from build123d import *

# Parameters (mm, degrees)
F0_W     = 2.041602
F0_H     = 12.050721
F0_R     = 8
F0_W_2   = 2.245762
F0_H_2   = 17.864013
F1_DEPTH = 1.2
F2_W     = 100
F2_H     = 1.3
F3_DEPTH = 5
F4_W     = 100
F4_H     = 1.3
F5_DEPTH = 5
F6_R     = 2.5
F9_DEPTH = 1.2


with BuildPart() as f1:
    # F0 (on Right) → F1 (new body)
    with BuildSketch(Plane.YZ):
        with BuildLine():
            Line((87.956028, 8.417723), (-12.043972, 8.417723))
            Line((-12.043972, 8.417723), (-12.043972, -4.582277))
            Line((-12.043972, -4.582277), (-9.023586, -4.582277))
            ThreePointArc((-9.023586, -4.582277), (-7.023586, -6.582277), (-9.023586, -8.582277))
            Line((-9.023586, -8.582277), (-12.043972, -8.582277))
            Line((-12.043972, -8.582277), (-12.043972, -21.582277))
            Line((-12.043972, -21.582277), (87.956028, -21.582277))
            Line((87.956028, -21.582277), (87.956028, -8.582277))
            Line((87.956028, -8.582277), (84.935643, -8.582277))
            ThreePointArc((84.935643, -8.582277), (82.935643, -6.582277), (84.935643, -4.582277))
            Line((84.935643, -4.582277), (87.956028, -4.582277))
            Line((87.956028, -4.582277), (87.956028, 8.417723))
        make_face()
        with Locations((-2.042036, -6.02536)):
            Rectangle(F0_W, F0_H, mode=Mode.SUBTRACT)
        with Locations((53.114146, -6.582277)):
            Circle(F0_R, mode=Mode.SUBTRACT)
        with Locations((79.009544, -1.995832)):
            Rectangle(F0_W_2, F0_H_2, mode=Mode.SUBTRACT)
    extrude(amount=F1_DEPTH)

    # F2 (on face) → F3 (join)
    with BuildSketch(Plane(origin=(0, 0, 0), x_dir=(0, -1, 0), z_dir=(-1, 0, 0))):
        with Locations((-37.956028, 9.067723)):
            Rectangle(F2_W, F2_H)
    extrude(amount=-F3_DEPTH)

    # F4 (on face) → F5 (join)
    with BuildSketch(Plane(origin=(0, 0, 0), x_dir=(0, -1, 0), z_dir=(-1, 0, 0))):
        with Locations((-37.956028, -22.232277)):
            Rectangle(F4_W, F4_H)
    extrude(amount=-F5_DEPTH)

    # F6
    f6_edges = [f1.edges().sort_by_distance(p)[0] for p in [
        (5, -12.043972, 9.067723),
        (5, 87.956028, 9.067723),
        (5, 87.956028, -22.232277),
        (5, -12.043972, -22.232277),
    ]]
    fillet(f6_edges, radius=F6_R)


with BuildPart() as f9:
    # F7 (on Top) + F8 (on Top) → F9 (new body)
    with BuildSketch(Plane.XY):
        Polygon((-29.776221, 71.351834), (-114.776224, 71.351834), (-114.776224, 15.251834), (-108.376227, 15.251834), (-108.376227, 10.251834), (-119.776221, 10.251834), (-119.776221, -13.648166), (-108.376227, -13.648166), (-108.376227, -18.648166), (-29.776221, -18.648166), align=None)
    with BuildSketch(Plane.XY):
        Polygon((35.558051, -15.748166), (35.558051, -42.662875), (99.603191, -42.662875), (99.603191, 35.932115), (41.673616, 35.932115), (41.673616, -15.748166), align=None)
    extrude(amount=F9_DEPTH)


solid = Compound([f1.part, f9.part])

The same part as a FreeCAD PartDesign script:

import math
import FreeCAD as App
import Part
import Sketcher
Q = App.Units.Quantity


def edges_at(feature, points):
    """Names of the edges that pass closest to the given points."""
    edges = feature.Shape.Edges
    near = lambda p: min(range(len(edges)), key=lambda i: edges[i].distToShape(Part.Vertex(*p))[0])
    return sorted({f"Edge{near(p) + 1}" for p in points})


def add_polygon(sketch, points):
    """Adds a closed chain of lines whose ends are joined by coincident constraints."""
    first, n = sketch.GeometryCount, len(points)
    for a, b in zip(points, points[1:] + points[:1]):
        sketch.addGeometry(Part.LineSegment(App.Vector(*a, 0), App.Vector(*b, 0)), False)
    for i in range(n):
        sketch.addConstraint(Sketcher.Constraint("Coincident", first + i, 2, first + (i + 1) % n, 1))

doc = App.newDocument("Part")
body = doc.addObject("PartDesign::Body", "Body")

sketch1 = body.newObject("Sketcher::SketchObject", "Sketch")
sketch1.AttachmentSupport = (doc.getObject("YZ_Plane"), [""])
sketch1.MapMode = "FlatFace"
sketch1.addGeometry(Part.LineSegment(App.Vector(87.956028, 8.417723, 0), App.Vector(-12.043972, 8.417723, 0)), False)
sketch1.addGeometry(Part.LineSegment(App.Vector(-12.043972, 8.417723, 0), App.Vector(-12.043972, -4.582277, 0)), False)
sketch1.addGeometry(Part.LineSegment(App.Vector(-12.043972, -4.582277, 0), App.Vector(-9.023586, -4.582277, 0)), False)
sketch1.addGeometry(Part.ArcOfCircle(Part.Circle(App.Vector(-9.023586, -6.582277, 0), App.Vector(0, 0, 1), 2), math.radians(-90), math.radians(90)), False)
sketch1.addGeometry(Part.LineSegment(App.Vector(-9.023586, -8.582277, 0), App.Vector(-12.043972, -8.582277, 0)), False)
sketch1.addGeometry(Part.LineSegment(App.Vector(-12.043972, -8.582277, 0), App.Vector(-12.043972, -21.582277, 0)), False)
sketch1.addGeometry(Part.LineSegment(App.Vector(-12.043972, -21.582277, 0), App.Vector(87.956028, -21.582277, 0)), False)
sketch1.addGeometry(Part.LineSegment(App.Vector(87.956028, -21.582277, 0), App.Vector(87.956028, -8.582277, 0)), False)
sketch1.addGeometry(Part.LineSegment(App.Vector(87.956028, -8.582277, 0), App.Vector(84.935643, -8.582277, 0)), False)
sketch1.addGeometry(Part.ArcOfCircle(Part.Circle(App.Vector(84.935643, -6.582277, 0), App.Vector(0, 0, 1), 2), math.radians(90), math.radians(270)), False)
sketch1.addGeometry(Part.LineSegment(App.Vector(84.935643, -4.582277, 0), App.Vector(87.956028, -4.582277, 0)), False)
sketch1.addGeometry(Part.LineSegment(App.Vector(87.956028, -4.582277, 0), App.Vector(87.956028, 8.417723, 0)), False)
add_polygon(sketch1, [(-1.021235, -12.050721), (-3.062837, -12.050721), (-3.062837, 0), (-1.021235, 0)])
sketch1.addGeometry(Part.Circle(App.Vector(53.114146, -6.582277, 0), App.Vector(0, 0, 1), 8), False)
add_polygon(sketch1, [(80.132425, -10.927839), (77.886663, -10.927839), (77.886663, 6.936174), (80.132425, 6.936174)])
sketch1.addConstraint(Sketcher.Constraint("Coincident", 0, 2, 1, 1))
sketch1.addConstraint(Sketcher.Constraint("Coincident", 1, 2, 2, 1))
sketch1.addConstraint(Sketcher.Constraint("Tangent", 2, 2, 3, 2))
sketch1.addConstraint(Sketcher.Constraint("Tangent", 3, 1, 4, 1))
sketch1.addConstraint(Sketcher.Constraint("Coincident", 4, 2, 5, 1))
sketch1.addConstraint(Sketcher.Constraint("Coincident", 5, 2, 6, 1))
sketch1.addConstraint(Sketcher.Constraint("Coincident", 6, 2, 7, 1))
sketch1.addConstraint(Sketcher.Constraint("Coincident", 7, 2, 8, 1))
sketch1.addConstraint(Sketcher.Constraint("Tangent", 8, 2, 9, 2))
sketch1.addConstraint(Sketcher.Constraint("Tangent", 9, 1, 10, 1))
sketch1.addConstraint(Sketcher.Constraint("Coincident", 10, 2, 11, 1))
sketch1.addConstraint(Sketcher.Constraint("Coincident", 11, 2, 0, 1))
sketch1.addConstraint(Sketcher.Constraint("Horizontal", 0))
sketch1.addConstraint(Sketcher.Constraint("Vertical", 1))
sketch1.addConstraint(Sketcher.Constraint("Horizontal", 2))
sketch1.addConstraint(Sketcher.Constraint("Horizontal", 4))
sketch1.addConstraint(Sketcher.Constraint("Vertical", 5))
sketch1.addConstraint(Sketcher.Constraint("Horizontal", 6))
sketch1.addConstraint(Sketcher.Constraint("Vertical", 7))
sketch1.addConstraint(Sketcher.Constraint("Horizontal", 8))
sketch1.addConstraint(Sketcher.Constraint("Horizontal", 10))
sketch1.addConstraint(Sketcher.Constraint("Vertical", 11))
sketch1.addConstraint(Sketcher.Constraint("Horizontal", 12))
sketch1.addConstraint(Sketcher.Constraint("Vertical", 13))
sketch1.addConstraint(Sketcher.Constraint("Horizontal", 14))
sketch1.addConstraint(Sketcher.Constraint("Vertical", 15))
sketch1.addConstraint(Sketcher.Constraint("Horizontal", 17))
sketch1.addConstraint(Sketcher.Constraint("Vertical", 18))
sketch1.addConstraint(Sketcher.Constraint("Horizontal", 19))
sketch1.addConstraint(Sketcher.Constraint("Vertical", 20))
sketch1.addConstraint(Sketcher.Constraint("Equal", 3, 9))
sketch1.addConstraint(Sketcher.Constraint("PointOnObject", 13, 2, -1))
sketch1.addConstraint(Sketcher.Constraint("Horizontal", 3, 3, 9, 3))
sketch1.addConstraint(Sketcher.Constraint("Horizontal", 9, 3, 16, 3))
sketch1.addConstraint(Sketcher.Constraint("Vertical", 1, 2, 4, 2))
sketch1.addConstraint(Sketcher.Constraint("Vertical", 7, 2, 10, 2))
sketch1.addConstraint(Sketcher.Constraint("Equal", 4, 8))
sketch1.addConstraint(Sketcher.Constraint("Equal", 1, 5))
sketch1.addConstraint(Sketcher.Constraint("Diameter", 16, Q("16 mm")))
sketch1.addConstraint(Sketcher.Constraint("Radius", 3, Q("2 mm")))
sketch1.addConstraint(Sketcher.Constraint("DistanceX", 0, 2, 0, 1, Q("100 mm")))
sketch1.addConstraint(Sketcher.Constraint("DistanceY", 1, 2, 1, 1, Q("13 mm")))
sketch1.addConstraint(Sketcher.Constraint("DistanceX", 17, 2, 17, 1, Q("2.245762 mm")))
sketch1.addConstraint(Sketcher.Constraint("DistanceY", 13, 1, 13, 2, Q("12.050721 mm")))
sketch1.addConstraint(Sketcher.Constraint("DistanceX", 2, 1, 2, 2, Q("3.020386 mm")))
sketch1.addConstraint(Sketcher.Constraint("DistanceX", 12, 2, 12, 1, Q("2.041602 mm")))
sketch1.addConstraint(Sketcher.Constraint("DistanceY", 18, 1, 18, 2, Q("17.864013 mm")))
sketch1.addConstraint(Sketcher.Constraint("DistanceX", -1, 1, 6, 2, Q("87.956028 mm")))
sketch1.addConstraint(Sketcher.Constraint("DistanceY", 17, 2, -1, 1, Q("10.927839 mm")))
sketch1.addConstraint(Sketcher.Constraint("DistanceX", 0, 2, 16, 3, Q("65.158118 mm")))
sketch1.addConstraint(Sketcher.Constraint("DistanceX", 3, 1, 12, 2, Q("5.960749 mm")))
sketch1.addConstraint(Sketcher.Constraint("DistanceX", 17, 2, 8, 2, Q("7.04898 mm")))
sketch1.addConstraint(Sketcher.Constraint("DistanceY", 17, 2, 8, 2, Q("2.345562 mm")))
pad1 = body.newObject("PartDesign::Pad", "Pad")
pad1.Profile = sketch1
pad1.Length = 1.2

sketch2 = body.newObject("Sketcher::SketchObject", "Sketch001")
sketch2.AttachmentSupport = (doc.getObject("YZ_Plane"), [""])
sketch2.MapMode = "FlatFace"
add_polygon(sketch2, [(87.956028, 9.717723), (87.956028, 8.417723), (-12.043972, 8.417723), (-12.043972, 9.717723)])
sketch2.addConstraint(Sketcher.Constraint("Vertical", 0))
sketch2.addConstraint(Sketcher.Constraint("Horizontal", 1))
sketch2.addConstraint(Sketcher.Constraint("Vertical", 2))
sketch2.addConstraint(Sketcher.Constraint("Horizontal", 3))
sketch2.addConstraint(Sketcher.Constraint("DistanceX", 1, 2, 1, 1, Q("100 mm")))
sketch2.addConstraint(Sketcher.Constraint("DistanceY", 0, 2, 0, 1, Q("1.3 mm")))
sketch2.addConstraint(Sketcher.Constraint("DistanceX", -1, 1, 0, 2, Q("87.956028 mm")))
sketch2.addConstraint(Sketcher.Constraint("DistanceY", -1, 1, 0, 2, Q("8.417723 mm")))
pad2 = body.newObject("PartDesign::Pad", "Pad001")
pad2.Profile = sketch2
pad2.Length = 5

sketch3 = body.newObject("Sketcher::SketchObject", "Sketch002")
sketch3.AttachmentSupport = (doc.getObject("YZ_Plane"), [""])
sketch3.MapMode = "FlatFace"
add_polygon(sketch3, [(87.956028, -21.582277), (87.956028, -22.882277), (-12.043972, -22.882277), (-12.043972, -21.582277)])
sketch3.addConstraint(Sketcher.Constraint("Vertical", 0))
sketch3.addConstraint(Sketcher.Constraint("Horizontal", 1))
sketch3.addConstraint(Sketcher.Constraint("Vertical", 2))
sketch3.addConstraint(Sketcher.Constraint("Horizontal", 3))
sketch3.addConstraint(Sketcher.Constraint("DistanceX", 1, 2, 1, 1, Q("100 mm")))
sketch3.addConstraint(Sketcher.Constraint("DistanceY", 0, 2, 0, 1, Q("1.3 mm")))
sketch3.addConstraint(Sketcher.Constraint("DistanceX", -1, 1, 0, 2, Q("87.956028 mm")))
sketch3.addConstraint(Sketcher.Constraint("DistanceY", 0, 2, -1, 1, Q("22.882277 mm")))
pad3 = body.newObject("PartDesign::Pad", "Pad002")
pad3.Profile = sketch3
pad3.Length = 5
doc.recompute()

fillet = body.newObject("PartDesign::Fillet", "Fillet")
fillet.Base = (pad3, edges_at(pad3, [
    (5, -12.044, 9.068),
    (5, 87.956, 9.068),
    (5, 87.956, -22.232),
    (5, -12.044, -22.232),
]))
fillet.Radius = 2.5
body2 = doc.addObject("PartDesign::Body", "Body001")
body2.AllowCompound = True

sketch4 = body2.newObject("Sketcher::SketchObject", "Sketch003")
sketch4.AttachmentSupport = (doc.getObject("XY_Plane001"), [""])
sketch4.MapMode = "FlatFace"
add_polygon(sketch4, [(-29.776221, 71.351834), (-114.776224, 71.351834), (-114.776224, 15.251834), (-108.376227, 15.251834), (-108.376227, 10.251834), (-119.776221, 10.251834), (-119.776221, -13.648166), (-108.376227, -13.648166), (-108.376227, -18.648166), (-29.776221, -18.648166)])
add_polygon(sketch4, [(35.558051, -15.748166), (35.558051, -42.662875), (99.603191, -42.662875), (99.603191, 35.932115), (41.673616, 35.932115), (41.673616, -15.748166)])
sketch4.addConstraint(Sketcher.Constraint("Horizontal", 0))
sketch4.addConstraint(Sketcher.Constraint("Vertical", 1))
sketch4.addConstraint(Sketcher.Constraint("Horizontal", 2))
sketch4.addConstraint(Sketcher.Constraint("Vertical", 3))
sketch4.addConstraint(Sketcher.Constraint("Horizontal", 4))
sketch4.addConstraint(Sketcher.Constraint("Vertical", 5))
sketch4.addConstraint(Sketcher.Constraint("Horizontal", 6))
sketch4.addConstraint(Sketcher.Constraint("Vertical", 7))
sketch4.addConstraint(Sketcher.Constraint("Horizontal", 8))
sketch4.addConstraint(Sketcher.Constraint("Vertical", 9))
sketch4.addConstraint(Sketcher.Constraint("Vertical", 10))
sketch4.addConstraint(Sketcher.Constraint("Horizontal", 11))
sketch4.addConstraint(Sketcher.Constraint("Vertical", 12))
sketch4.addConstraint(Sketcher.Constraint("Horizontal", 13))
sketch4.addConstraint(Sketcher.Constraint("Vertical", 14))
sketch4.addConstraint(Sketcher.Constraint("Horizontal", 15))
sketch4.addConstraint(Sketcher.Constraint("Vertical", 3, 2, 6, 2))
sketch4.addConstraint(Sketcher.Constraint("Equal", 3, 7))
sketch4.addConstraint(Sketcher.Constraint("DistanceY", 3, 2, 3, 1, Q("5 mm")))
sketch4.addConstraint(Sketcher.Constraint("DistanceY", 9, 1, 9, 2, Q("90 mm")))
sketch4.addConstraint(Sketcher.Constraint("DistanceY", 1, 2, 1, 1, Q("56.1 mm")))
sketch4.addConstraint(Sketcher.Constraint("DistanceX", 5, 2, 8, 2, Q("90 mm")))
sketch4.addConstraint(Sketcher.Constraint("DistanceY", 8, 2, 14, 2, Q("2.9 mm")))
sketch4.addConstraint(Sketcher.Constraint("DistanceX", 11, 1, 11, 2, Q("64.04514 mm")))
sketch4.addConstraint(Sketcher.Constraint("DistanceY", 10, 2, 10, 1, Q("26.914709 mm")))
sketch4.addConstraint(Sketcher.Constraint("DistanceY", 12, 1, 12, 2, Q("78.59499 mm")))
sketch4.addConstraint(Sketcher.Constraint("DistanceX", 0, 2, 0, 1, Q("85.000003 mm")))
sketch4.addConstraint(Sketcher.Constraint("DistanceX", 2, 1, 2, 2, Q("6.399997 mm")))
sketch4.addConstraint(Sketcher.Constraint("DistanceX", 13, 2, 13, 1, Q("57.929575 mm")))
sketch4.addConstraint(Sketcher.Constraint("DistanceX", 4, 2, -1, 1, Q("119.776221 mm")))
sketch4.addConstraint(Sketcher.Constraint("DistanceX", -1, 1, 10, 2, Q("35.558051 mm")))
sketch4.addConstraint(Sketcher.Constraint("DistanceY", -1, 1, 0, 2, Q("71.351834 mm")))
pad4 = body2.newObject("PartDesign::Pad", "Pad003")
pad4.Profile = sketch4
pad4.Length = 1.2

doc.recompute()
